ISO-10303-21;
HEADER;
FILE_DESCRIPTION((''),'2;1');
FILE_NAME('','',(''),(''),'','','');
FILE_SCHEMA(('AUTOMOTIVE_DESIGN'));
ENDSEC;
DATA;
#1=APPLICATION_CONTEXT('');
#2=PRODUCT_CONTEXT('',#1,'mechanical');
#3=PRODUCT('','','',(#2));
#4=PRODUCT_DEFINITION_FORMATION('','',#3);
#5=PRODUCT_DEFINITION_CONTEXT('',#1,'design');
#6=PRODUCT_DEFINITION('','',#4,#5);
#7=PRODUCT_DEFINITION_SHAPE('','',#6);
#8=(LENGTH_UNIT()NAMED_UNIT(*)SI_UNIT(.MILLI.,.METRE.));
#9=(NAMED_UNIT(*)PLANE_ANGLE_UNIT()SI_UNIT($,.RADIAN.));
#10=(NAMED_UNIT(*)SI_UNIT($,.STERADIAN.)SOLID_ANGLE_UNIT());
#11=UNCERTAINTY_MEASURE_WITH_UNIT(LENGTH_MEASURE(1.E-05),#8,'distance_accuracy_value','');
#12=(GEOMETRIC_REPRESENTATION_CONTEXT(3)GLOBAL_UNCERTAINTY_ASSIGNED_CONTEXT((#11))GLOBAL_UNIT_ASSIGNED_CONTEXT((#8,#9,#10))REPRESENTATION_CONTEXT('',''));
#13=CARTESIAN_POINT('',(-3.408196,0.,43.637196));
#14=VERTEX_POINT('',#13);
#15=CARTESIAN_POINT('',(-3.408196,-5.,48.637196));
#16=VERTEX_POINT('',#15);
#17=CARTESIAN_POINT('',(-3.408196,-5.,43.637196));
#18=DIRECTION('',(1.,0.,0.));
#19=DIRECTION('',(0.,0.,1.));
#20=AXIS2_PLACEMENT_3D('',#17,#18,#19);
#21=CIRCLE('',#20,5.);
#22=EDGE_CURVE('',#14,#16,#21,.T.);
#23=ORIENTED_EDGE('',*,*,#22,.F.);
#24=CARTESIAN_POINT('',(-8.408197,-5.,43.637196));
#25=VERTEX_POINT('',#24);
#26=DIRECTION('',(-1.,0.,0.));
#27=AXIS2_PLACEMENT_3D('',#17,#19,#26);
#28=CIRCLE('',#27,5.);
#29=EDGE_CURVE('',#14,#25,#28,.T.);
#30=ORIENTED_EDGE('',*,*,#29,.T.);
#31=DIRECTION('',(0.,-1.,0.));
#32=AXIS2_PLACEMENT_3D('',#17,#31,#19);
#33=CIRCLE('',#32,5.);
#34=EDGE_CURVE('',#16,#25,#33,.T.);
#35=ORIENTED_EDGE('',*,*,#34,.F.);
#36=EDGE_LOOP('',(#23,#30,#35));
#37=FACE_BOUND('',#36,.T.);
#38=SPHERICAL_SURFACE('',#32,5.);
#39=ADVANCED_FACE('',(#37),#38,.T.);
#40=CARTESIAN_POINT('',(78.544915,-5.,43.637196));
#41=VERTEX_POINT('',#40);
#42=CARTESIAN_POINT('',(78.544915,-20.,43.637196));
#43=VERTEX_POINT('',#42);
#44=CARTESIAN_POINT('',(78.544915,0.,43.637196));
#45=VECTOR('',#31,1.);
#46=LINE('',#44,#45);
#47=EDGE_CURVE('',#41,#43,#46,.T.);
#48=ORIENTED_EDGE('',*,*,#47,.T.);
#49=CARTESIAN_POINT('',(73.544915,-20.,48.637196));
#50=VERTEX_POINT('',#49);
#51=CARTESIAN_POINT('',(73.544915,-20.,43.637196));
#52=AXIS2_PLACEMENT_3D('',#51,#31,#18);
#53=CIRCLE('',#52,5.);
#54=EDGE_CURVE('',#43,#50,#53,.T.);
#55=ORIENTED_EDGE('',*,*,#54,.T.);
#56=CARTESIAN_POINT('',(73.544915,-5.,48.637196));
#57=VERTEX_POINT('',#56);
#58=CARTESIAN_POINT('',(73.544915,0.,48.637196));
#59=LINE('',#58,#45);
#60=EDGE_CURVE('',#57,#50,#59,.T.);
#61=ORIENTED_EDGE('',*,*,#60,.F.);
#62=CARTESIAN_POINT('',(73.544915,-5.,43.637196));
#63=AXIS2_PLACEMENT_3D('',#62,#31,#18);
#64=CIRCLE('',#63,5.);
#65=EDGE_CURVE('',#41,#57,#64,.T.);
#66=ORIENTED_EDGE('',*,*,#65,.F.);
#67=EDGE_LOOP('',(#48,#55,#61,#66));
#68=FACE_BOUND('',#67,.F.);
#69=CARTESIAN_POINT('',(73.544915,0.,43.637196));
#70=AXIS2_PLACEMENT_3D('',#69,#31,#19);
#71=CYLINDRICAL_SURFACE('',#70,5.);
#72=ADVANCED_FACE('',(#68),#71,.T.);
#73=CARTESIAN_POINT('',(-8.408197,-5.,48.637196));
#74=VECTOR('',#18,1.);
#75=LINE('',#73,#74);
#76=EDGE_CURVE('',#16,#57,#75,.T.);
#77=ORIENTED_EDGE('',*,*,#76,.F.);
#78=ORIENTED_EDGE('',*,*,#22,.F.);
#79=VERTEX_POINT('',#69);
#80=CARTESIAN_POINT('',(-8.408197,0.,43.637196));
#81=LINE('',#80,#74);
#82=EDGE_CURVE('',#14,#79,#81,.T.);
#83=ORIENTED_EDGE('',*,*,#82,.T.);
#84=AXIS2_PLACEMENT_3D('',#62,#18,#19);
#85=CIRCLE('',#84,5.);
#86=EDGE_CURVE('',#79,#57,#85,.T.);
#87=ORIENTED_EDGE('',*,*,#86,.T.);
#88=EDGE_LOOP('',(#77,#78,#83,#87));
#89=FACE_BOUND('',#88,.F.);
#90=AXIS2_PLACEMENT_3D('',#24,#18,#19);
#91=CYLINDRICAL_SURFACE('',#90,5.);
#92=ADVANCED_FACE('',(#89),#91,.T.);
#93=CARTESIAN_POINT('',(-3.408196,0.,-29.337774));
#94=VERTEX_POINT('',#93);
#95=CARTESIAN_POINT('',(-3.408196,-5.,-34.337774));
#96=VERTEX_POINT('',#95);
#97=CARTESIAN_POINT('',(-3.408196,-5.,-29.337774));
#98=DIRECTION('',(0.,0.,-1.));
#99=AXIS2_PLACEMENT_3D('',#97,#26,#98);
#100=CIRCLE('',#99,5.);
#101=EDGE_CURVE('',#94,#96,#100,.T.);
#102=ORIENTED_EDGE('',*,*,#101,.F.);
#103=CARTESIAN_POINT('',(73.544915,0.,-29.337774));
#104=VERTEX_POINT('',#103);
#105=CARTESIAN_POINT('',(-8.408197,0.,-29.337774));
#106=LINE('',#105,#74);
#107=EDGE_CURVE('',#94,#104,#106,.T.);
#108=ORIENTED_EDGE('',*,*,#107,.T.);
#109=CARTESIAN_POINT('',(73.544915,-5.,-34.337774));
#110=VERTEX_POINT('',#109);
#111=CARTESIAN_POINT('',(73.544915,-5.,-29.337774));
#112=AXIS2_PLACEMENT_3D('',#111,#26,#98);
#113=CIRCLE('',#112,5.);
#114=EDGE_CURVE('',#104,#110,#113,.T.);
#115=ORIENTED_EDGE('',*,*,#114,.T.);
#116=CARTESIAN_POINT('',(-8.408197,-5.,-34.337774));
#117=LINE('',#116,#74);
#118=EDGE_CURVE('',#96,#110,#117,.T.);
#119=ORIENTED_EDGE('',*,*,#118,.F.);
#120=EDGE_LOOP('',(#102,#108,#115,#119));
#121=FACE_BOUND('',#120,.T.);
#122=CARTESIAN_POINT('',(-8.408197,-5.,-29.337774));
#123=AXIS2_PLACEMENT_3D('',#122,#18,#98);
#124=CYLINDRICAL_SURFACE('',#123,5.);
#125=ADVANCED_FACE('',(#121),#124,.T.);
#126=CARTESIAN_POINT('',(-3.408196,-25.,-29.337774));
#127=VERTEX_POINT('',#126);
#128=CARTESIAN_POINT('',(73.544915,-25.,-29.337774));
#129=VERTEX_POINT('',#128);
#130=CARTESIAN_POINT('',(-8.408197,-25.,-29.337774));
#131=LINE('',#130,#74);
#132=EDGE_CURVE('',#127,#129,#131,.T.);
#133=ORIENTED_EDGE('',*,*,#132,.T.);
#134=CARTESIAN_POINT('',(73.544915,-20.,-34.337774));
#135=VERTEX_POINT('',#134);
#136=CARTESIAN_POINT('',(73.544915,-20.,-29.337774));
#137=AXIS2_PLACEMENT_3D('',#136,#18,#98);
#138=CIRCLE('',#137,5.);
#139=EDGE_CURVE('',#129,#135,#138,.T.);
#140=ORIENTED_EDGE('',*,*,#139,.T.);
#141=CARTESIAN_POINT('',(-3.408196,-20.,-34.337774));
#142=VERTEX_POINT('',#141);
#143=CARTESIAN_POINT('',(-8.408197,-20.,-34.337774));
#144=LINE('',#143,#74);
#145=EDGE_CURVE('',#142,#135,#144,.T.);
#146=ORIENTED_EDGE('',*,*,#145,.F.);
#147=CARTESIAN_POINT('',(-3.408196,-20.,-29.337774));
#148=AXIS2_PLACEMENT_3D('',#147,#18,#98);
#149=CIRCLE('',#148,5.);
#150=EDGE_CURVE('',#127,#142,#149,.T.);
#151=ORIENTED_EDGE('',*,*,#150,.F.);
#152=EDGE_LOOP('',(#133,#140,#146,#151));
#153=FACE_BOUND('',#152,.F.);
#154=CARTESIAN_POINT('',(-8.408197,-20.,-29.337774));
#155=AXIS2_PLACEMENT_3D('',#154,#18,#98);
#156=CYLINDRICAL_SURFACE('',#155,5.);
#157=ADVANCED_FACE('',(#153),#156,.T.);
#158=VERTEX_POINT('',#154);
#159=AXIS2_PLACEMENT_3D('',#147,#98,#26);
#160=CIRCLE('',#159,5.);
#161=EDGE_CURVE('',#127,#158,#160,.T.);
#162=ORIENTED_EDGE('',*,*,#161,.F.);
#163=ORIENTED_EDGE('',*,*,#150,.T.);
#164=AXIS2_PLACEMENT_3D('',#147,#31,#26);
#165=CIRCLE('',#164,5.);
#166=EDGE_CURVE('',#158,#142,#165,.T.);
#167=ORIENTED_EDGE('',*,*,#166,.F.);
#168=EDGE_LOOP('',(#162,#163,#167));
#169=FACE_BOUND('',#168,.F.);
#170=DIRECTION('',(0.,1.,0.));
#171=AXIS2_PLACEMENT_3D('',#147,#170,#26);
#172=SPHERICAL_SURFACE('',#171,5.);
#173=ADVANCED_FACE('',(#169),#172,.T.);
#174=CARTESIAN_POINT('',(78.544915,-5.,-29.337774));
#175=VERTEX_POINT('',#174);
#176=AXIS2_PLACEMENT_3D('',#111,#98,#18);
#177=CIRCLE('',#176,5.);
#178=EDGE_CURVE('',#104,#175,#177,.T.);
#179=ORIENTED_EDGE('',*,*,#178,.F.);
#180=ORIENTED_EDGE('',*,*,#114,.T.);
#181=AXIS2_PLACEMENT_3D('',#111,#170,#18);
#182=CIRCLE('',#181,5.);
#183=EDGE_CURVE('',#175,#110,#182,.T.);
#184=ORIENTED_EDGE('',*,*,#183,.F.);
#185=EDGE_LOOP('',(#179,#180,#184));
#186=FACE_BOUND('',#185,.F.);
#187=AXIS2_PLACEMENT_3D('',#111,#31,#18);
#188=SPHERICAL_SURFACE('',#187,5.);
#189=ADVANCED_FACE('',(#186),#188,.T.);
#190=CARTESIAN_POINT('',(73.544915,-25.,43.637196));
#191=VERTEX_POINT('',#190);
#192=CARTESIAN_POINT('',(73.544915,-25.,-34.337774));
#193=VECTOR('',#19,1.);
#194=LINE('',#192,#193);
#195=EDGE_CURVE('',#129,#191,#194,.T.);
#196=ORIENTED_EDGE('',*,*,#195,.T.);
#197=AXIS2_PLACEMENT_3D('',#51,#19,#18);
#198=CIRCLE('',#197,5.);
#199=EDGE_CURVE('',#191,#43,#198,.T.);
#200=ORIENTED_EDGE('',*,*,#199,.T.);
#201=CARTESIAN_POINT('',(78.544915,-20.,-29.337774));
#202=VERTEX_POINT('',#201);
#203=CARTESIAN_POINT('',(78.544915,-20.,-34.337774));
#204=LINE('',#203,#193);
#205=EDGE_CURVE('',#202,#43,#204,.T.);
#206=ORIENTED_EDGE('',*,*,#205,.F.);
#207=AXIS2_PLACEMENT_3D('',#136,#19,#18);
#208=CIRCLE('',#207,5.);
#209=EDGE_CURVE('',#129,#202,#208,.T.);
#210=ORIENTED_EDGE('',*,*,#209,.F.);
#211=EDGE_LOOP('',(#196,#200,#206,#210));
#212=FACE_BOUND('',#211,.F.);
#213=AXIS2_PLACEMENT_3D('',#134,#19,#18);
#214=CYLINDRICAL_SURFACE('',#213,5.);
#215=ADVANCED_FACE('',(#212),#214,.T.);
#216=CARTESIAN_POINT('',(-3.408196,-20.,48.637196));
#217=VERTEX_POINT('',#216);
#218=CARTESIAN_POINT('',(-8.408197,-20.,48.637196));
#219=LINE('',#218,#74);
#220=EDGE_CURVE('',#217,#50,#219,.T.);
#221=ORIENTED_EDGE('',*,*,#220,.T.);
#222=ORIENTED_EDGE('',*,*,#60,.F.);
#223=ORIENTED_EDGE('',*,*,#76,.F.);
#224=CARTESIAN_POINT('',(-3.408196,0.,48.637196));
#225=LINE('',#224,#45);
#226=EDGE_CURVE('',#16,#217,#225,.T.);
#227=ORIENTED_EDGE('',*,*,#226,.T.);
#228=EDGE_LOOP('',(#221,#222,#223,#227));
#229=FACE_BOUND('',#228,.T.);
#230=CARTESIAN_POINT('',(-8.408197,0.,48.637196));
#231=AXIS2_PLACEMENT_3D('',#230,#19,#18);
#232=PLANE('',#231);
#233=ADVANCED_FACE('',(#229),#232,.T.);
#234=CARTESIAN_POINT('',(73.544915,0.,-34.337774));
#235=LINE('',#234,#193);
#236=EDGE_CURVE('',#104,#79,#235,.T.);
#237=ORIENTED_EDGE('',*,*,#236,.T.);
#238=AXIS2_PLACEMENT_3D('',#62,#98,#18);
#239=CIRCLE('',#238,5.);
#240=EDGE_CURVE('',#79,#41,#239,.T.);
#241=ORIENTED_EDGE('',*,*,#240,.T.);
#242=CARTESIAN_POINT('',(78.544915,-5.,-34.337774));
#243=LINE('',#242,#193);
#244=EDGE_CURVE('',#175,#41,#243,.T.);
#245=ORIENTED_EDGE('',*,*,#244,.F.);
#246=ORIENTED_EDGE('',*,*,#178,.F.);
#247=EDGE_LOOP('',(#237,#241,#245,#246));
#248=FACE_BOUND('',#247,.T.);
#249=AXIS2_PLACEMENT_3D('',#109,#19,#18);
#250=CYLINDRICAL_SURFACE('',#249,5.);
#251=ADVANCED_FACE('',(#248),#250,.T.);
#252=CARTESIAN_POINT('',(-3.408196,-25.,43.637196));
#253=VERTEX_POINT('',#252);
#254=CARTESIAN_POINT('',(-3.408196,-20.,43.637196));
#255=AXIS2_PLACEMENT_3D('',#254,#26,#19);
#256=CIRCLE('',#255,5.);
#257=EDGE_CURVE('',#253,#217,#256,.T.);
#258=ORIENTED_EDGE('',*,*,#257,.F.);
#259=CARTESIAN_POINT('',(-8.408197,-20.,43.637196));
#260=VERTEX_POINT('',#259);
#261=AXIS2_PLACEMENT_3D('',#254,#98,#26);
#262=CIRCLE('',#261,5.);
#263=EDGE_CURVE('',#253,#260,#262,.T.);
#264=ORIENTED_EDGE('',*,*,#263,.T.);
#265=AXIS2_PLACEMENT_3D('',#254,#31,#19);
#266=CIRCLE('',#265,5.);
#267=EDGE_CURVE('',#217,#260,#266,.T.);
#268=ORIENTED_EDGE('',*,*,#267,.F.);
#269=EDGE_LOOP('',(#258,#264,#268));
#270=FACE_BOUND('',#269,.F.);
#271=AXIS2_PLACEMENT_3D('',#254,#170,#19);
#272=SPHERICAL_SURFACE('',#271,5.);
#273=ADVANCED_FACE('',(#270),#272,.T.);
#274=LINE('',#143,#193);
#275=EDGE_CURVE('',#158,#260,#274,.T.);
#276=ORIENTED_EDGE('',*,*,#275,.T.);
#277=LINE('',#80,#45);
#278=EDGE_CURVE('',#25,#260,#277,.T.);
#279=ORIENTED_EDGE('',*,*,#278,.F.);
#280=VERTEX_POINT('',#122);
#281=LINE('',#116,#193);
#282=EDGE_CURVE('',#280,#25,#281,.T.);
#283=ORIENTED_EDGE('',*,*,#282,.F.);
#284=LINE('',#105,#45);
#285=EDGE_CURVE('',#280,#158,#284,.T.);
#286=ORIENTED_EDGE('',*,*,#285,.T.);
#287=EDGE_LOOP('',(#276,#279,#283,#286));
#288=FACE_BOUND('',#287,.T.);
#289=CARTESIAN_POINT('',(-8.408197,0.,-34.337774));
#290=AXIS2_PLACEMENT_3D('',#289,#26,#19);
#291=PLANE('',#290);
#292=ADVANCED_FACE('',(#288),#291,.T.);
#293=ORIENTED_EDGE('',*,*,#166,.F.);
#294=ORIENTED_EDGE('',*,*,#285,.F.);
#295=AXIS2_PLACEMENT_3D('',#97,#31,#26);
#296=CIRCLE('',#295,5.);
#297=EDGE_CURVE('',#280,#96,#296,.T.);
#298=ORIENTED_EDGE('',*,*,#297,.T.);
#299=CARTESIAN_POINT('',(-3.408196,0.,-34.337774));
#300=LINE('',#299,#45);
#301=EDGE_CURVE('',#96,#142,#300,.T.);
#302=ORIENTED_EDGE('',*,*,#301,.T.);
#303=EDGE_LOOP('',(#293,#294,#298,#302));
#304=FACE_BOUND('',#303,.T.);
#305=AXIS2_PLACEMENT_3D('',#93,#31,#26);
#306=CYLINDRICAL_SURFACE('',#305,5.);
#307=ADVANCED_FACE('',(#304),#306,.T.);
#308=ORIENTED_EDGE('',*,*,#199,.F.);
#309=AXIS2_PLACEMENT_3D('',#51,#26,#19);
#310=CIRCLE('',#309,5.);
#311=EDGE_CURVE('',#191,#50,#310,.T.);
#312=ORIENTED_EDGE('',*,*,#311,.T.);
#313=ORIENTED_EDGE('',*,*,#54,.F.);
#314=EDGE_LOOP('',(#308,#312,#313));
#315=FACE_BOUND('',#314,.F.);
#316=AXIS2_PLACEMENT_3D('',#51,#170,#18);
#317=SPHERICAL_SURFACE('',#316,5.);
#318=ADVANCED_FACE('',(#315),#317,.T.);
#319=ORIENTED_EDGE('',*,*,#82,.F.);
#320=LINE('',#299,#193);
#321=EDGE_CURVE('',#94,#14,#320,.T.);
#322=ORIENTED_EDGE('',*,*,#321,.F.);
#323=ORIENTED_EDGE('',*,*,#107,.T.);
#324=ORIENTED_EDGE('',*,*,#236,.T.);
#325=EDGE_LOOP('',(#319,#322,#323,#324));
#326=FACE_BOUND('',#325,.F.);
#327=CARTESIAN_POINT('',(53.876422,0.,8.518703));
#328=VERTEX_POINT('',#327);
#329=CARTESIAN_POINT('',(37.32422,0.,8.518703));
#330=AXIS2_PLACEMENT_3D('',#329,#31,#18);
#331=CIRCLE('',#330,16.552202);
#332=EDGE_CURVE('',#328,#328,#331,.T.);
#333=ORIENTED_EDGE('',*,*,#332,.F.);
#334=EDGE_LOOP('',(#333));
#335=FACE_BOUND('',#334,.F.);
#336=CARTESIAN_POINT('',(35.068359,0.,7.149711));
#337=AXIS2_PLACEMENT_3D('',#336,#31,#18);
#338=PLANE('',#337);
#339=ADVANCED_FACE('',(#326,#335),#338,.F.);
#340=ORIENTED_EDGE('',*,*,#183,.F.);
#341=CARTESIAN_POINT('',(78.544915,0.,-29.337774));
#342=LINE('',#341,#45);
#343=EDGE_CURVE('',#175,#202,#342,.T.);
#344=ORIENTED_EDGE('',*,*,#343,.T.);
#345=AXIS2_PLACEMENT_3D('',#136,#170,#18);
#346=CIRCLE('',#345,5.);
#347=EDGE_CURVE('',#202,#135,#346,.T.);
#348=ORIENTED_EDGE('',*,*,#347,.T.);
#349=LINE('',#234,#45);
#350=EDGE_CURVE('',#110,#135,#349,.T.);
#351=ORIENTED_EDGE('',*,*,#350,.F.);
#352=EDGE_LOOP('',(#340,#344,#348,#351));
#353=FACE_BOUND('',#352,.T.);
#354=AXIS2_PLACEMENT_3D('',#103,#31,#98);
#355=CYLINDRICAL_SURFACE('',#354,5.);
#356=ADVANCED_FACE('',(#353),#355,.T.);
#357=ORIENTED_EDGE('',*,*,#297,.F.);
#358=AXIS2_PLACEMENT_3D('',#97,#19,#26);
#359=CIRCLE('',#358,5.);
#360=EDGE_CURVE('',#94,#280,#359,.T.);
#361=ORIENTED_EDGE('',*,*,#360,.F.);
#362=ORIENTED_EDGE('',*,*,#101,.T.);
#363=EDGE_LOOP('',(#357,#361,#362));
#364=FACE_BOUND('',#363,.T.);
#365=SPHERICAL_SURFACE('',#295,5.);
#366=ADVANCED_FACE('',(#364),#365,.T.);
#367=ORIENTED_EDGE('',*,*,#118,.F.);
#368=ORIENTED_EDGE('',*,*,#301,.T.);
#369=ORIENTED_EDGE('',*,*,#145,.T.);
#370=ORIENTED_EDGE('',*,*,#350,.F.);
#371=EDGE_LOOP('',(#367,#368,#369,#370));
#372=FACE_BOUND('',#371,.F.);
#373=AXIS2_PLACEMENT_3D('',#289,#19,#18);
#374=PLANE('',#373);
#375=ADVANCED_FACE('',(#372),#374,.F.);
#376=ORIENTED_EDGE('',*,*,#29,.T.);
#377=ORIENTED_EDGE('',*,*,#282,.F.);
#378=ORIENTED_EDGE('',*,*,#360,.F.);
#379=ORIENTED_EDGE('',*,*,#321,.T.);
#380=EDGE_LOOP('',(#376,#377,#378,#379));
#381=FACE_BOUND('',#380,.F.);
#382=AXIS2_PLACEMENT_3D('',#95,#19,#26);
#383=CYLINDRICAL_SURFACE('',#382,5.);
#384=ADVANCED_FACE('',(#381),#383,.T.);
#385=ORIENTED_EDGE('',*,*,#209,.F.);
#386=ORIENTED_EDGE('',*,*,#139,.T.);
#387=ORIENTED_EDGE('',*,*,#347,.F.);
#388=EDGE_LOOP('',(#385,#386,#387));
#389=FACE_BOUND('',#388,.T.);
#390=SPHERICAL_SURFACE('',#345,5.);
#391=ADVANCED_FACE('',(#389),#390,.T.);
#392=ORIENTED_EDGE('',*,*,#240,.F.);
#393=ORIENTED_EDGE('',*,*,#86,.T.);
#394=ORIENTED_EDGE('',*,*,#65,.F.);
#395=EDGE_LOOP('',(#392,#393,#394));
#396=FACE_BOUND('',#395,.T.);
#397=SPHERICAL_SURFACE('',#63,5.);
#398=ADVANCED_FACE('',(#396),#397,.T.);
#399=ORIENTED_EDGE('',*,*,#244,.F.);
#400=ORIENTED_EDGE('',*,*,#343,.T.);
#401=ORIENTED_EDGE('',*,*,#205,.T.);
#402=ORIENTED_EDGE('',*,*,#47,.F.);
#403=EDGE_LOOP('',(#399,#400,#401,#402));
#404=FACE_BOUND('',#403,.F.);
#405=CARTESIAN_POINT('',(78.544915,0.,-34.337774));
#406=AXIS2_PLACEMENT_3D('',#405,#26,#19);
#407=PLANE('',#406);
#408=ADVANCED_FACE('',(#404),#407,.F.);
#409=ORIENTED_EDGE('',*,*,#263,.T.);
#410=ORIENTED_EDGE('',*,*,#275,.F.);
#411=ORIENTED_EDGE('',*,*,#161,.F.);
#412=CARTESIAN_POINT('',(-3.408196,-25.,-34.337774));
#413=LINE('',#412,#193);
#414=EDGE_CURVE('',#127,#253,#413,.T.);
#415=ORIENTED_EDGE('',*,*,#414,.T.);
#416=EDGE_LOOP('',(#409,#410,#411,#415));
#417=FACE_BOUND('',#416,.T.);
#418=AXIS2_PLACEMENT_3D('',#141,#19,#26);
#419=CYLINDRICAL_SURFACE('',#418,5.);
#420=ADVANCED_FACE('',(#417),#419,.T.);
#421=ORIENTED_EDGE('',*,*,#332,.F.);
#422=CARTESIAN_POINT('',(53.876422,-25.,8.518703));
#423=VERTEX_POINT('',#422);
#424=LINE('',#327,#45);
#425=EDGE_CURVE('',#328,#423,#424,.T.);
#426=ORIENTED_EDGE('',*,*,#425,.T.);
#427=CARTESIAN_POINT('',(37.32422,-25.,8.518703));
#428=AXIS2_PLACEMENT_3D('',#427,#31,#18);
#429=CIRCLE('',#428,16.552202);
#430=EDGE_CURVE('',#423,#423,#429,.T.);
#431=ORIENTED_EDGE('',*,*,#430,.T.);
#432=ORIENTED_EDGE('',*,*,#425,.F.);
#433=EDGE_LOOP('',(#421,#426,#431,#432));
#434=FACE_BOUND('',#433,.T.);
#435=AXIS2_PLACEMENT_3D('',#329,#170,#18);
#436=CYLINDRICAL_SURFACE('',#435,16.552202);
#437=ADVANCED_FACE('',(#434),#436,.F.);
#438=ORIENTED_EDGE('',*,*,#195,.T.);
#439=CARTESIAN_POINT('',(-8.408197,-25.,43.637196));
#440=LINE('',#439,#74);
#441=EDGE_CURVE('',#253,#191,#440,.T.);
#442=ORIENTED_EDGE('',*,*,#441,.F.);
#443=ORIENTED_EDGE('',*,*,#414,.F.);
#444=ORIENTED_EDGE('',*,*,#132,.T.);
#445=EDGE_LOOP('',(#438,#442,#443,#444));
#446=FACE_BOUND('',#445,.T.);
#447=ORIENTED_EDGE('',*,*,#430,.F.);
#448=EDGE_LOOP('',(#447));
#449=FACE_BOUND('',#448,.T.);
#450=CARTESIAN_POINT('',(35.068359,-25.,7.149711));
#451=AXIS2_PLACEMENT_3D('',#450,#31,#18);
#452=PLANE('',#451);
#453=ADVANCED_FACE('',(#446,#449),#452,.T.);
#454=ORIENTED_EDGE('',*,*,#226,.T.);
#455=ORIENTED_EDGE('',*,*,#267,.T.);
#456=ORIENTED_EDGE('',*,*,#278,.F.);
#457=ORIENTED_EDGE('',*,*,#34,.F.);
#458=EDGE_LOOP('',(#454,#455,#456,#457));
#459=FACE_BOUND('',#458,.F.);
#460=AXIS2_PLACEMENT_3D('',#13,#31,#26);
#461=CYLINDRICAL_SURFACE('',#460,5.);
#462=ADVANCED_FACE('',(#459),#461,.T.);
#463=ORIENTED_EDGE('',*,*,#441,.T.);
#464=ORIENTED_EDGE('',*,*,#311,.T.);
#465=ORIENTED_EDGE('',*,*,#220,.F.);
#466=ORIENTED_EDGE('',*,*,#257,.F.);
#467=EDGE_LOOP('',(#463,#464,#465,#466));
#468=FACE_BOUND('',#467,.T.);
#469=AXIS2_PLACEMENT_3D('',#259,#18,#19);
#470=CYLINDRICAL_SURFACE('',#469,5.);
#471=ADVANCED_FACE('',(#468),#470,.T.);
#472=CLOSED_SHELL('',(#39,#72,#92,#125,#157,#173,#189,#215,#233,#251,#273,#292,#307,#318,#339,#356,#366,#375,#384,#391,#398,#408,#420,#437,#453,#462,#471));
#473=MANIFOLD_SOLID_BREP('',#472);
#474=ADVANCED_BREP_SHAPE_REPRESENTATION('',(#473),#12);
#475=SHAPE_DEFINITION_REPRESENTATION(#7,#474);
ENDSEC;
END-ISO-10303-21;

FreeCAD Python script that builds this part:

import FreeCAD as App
import Part
import Sketcher

V = App.Vector


def edges_at(feature, points):
    """Names of the edges that pass closest to the given points."""
    edges = feature.Shape.Edges
    near = lambda p: min(range(len(edges)), key=lambda i: edges[i].distToShape(Part.Vertex(*p))[0])
    return sorted({f"Edge{near(p) + 1}" for p in points})

doc = App.newDocument("Part")
params = doc.addObject("Spreadsheet::Sheet", "Params")
for row, (alias, value) in enumerate([
    ("pad1_length", "25 mm"),
    ("fillet_radius", "5 mm"),
], start=1):
    params.set(f"A{row}", alias)
    params.set(f"B{row}", "=" + value)
    params.setAlias(f"B{row}", alias)

body = doc.addObject("PartDesign::Body", "Body")

# Sketch on XZ plane
sketch1 = doc.addObject("Sketcher::SketchObject", "Sketch")
body.addObject(sketch1)
sketch1.AttachmentSupport = (doc.XZ_Plane, [""])
sketch1.MapMode = "FlatFace"
sketch1.addGeometry([
    Part.LineSegment(V(-8.408197, 48.637196, 0), V(-8.408197, -34.337774, 0)),  # 0
    Part.LineSegment(V(-8.408197, -34.337774, 0), V(78.544915, -34.337774, 0)),  # 1
    Part.LineSegment(V(78.544915, -34.337774, 0), V(78.544915, 48.637196, 0)),  # 2
    Part.LineSegment(V(78.544915, 48.637196, 0), V(-8.408197, 48.637196, 0)),  # 3
    Part.Circle(V(37.32422, 8.518703, 0), V(0, 0, 1), 16.552202),  # 4
], False)
sketch1.addConstraint([
    Sketcher.Constraint("Coincident", 0, 2, 1, 1),
    Sketcher.Constraint("Coincident", 1, 2, 2, 1),
    Sketcher.Constraint("Coincident", 2, 2, 3, 1),
    Sketcher.Constraint("Coincident", 3, 2, 0, 1),
    Sketcher.Constraint("Vertical", 0),
    Sketcher.Constraint("Horizontal", 1),
    Sketcher.Constraint("Vertical", 2),
    Sketcher.Constraint("Horizontal", 3),
    Sketcher.Constraint("Diameter", 4, 33.104404),
    Sketcher.Constraint("DistanceX", 1, 1, 1, 2, 86.953111),
    Sketcher.Constraint("DistanceY", 0, 2, 0, 1, 82.97497),
    Sketcher.Constraint("DistanceX", -1, 1, 4, 3, 37.32422),
    Sketcher.Constraint("DistanceY", -1, 1, 4, 3, 8.518703),
    Sketcher.Constraint("DistanceX", 0, 2, -1, 1, 8.408197),
    Sketcher.Constraint("DistanceY", 0, 2, -1, 1, 34.337774),
])
pad1 = doc.addObject("PartDesign::Pad", "Pad")
body.addObject(pad1)
pad1.Profile = sketch1
pad1.setExpression("Length", "Params.pad1_length")
doc.recompute()

fillet = doc.addObject("PartDesign::Fillet", "Fillet")
body.addObject(fillet)
fillet.Base = (pad1, edges_at(pad1, [
    (78.545, -12.5, -34.338),
    (78.545, -12.5, 48.637),
    (78.545, 0, 7.15),
    (78.545, -25, 7.15),
    (-8.408, -12.5, 48.637),
    (35.068, 0, 48.637),
    (35.068, -25, 48.637),
    (-8.408, -12.5, -34.338),
    (-8.408, 0, 7.15),
    (-8.408, -25, 7.15),
    (35.068, 0, -34.338),
    (35.068, -25, -34.338),
]))
fillet.setExpression("Radius", "Params.fillet_radius")

doc.recompute()
